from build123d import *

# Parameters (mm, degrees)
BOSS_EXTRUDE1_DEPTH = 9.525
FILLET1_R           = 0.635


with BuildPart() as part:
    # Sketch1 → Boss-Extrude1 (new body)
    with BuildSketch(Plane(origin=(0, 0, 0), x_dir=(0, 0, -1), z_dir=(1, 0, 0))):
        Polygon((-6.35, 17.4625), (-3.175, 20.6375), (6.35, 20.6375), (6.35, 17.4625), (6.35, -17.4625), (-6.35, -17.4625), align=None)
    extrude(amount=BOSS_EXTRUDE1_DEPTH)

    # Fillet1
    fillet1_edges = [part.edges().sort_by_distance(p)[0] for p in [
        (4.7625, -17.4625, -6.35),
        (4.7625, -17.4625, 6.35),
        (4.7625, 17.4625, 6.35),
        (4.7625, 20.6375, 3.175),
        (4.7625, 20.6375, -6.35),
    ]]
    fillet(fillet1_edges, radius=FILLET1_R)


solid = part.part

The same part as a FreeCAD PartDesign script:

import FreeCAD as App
import Part
import Sketcher
from FreeCAD import Vector
Q = App.Units.Quantity


def edges_at(feature, points):
    """Names of the edges that pass closest to the given points."""
    edges = feature.Shape.Edges
    near = lambda p: min(range(len(edges)), key=lambda i: edges[i].distToShape(Part.Vertex(*p))[0])
    return sorted({f"Edge{near(p) + 1}" for p in points})


def add_polygon(sketch, points):
    """Adds a closed chain of lines whose ends are joined by coincident constraints."""
    first, n = sketch.GeometryCount, len(points)
    for a, b in zip(points, points[1:] + points[:1]):
        sketch.addGeometry(Part.LineSegment(App.Vector(*a, 0), App.Vector(*b, 0)), False)
    for i in range(n):
        sketch.addConstraint(Sketcher.Constraint("Coincident", first + i, 2, first + (i + 1) % n, 1))

doc = App.newDocument("Part")
body = doc.addObject("PartDesign::Body", "Body")

# Sketch on YZ plane
sketch1 = body.newObject("Sketcher::SketchObject", "Sketch")
sketch1.AttachmentSupport = (doc.getObject("YZ_Plane"), [""])
sketch1.MapMode = "FlatFace"
add_polygon(sketch1, [(20.6, 3.2), (17.5, 6.3), (-17.5, 6.3), (-17.5, -6.3), (20.6, -6.3)])  # lines 0-4
sketch1.addConstraint([
    Sketcher.Constraint("Horizontal", 1),
    Sketcher.Constraint("Vertical", 2),
    Sketcher.Constraint("Horizontal", 3),
    Sketcher.Constraint("Vertical", 4),
    Sketcher.Constraint("Symmetric", 0, 2, 2, 2, -1, 1),
    Sketcher.Constraint("DistanceX", 3, 1, 3, 2, Q("1.5 in")),
    Sketcher.Constraint("DistanceY", 2, 2, 2, 1, Q("0.5 in")),
    Sketcher.Constraint("Angle", 0, Q("135 deg")),
    Sketcher.Constraint("DistanceX", 1, 2, 1, 1, Q("1.375 in")),
])
pad1 = body.newObject("PartDesign::Pad", "Pad")
pad1.Profile = sketch1
pad1.Length = Q("0.375 in")
doc.recompute()

fillet = body.newObject("PartDesign::Fillet", "Fillet")
fillet.Base = (pad1, edges_at(pad1, [
    (4.763, -17.462, -6.35),
    (4.763, -17.462, 6.35),
    (4.763, 17.462, 6.35),
    (4.763, 20.637, 3.175),
    (4.763, 20.637, -6.35),
]))
fillet.Radius = Q("0.025 in")

doc.recompute()
